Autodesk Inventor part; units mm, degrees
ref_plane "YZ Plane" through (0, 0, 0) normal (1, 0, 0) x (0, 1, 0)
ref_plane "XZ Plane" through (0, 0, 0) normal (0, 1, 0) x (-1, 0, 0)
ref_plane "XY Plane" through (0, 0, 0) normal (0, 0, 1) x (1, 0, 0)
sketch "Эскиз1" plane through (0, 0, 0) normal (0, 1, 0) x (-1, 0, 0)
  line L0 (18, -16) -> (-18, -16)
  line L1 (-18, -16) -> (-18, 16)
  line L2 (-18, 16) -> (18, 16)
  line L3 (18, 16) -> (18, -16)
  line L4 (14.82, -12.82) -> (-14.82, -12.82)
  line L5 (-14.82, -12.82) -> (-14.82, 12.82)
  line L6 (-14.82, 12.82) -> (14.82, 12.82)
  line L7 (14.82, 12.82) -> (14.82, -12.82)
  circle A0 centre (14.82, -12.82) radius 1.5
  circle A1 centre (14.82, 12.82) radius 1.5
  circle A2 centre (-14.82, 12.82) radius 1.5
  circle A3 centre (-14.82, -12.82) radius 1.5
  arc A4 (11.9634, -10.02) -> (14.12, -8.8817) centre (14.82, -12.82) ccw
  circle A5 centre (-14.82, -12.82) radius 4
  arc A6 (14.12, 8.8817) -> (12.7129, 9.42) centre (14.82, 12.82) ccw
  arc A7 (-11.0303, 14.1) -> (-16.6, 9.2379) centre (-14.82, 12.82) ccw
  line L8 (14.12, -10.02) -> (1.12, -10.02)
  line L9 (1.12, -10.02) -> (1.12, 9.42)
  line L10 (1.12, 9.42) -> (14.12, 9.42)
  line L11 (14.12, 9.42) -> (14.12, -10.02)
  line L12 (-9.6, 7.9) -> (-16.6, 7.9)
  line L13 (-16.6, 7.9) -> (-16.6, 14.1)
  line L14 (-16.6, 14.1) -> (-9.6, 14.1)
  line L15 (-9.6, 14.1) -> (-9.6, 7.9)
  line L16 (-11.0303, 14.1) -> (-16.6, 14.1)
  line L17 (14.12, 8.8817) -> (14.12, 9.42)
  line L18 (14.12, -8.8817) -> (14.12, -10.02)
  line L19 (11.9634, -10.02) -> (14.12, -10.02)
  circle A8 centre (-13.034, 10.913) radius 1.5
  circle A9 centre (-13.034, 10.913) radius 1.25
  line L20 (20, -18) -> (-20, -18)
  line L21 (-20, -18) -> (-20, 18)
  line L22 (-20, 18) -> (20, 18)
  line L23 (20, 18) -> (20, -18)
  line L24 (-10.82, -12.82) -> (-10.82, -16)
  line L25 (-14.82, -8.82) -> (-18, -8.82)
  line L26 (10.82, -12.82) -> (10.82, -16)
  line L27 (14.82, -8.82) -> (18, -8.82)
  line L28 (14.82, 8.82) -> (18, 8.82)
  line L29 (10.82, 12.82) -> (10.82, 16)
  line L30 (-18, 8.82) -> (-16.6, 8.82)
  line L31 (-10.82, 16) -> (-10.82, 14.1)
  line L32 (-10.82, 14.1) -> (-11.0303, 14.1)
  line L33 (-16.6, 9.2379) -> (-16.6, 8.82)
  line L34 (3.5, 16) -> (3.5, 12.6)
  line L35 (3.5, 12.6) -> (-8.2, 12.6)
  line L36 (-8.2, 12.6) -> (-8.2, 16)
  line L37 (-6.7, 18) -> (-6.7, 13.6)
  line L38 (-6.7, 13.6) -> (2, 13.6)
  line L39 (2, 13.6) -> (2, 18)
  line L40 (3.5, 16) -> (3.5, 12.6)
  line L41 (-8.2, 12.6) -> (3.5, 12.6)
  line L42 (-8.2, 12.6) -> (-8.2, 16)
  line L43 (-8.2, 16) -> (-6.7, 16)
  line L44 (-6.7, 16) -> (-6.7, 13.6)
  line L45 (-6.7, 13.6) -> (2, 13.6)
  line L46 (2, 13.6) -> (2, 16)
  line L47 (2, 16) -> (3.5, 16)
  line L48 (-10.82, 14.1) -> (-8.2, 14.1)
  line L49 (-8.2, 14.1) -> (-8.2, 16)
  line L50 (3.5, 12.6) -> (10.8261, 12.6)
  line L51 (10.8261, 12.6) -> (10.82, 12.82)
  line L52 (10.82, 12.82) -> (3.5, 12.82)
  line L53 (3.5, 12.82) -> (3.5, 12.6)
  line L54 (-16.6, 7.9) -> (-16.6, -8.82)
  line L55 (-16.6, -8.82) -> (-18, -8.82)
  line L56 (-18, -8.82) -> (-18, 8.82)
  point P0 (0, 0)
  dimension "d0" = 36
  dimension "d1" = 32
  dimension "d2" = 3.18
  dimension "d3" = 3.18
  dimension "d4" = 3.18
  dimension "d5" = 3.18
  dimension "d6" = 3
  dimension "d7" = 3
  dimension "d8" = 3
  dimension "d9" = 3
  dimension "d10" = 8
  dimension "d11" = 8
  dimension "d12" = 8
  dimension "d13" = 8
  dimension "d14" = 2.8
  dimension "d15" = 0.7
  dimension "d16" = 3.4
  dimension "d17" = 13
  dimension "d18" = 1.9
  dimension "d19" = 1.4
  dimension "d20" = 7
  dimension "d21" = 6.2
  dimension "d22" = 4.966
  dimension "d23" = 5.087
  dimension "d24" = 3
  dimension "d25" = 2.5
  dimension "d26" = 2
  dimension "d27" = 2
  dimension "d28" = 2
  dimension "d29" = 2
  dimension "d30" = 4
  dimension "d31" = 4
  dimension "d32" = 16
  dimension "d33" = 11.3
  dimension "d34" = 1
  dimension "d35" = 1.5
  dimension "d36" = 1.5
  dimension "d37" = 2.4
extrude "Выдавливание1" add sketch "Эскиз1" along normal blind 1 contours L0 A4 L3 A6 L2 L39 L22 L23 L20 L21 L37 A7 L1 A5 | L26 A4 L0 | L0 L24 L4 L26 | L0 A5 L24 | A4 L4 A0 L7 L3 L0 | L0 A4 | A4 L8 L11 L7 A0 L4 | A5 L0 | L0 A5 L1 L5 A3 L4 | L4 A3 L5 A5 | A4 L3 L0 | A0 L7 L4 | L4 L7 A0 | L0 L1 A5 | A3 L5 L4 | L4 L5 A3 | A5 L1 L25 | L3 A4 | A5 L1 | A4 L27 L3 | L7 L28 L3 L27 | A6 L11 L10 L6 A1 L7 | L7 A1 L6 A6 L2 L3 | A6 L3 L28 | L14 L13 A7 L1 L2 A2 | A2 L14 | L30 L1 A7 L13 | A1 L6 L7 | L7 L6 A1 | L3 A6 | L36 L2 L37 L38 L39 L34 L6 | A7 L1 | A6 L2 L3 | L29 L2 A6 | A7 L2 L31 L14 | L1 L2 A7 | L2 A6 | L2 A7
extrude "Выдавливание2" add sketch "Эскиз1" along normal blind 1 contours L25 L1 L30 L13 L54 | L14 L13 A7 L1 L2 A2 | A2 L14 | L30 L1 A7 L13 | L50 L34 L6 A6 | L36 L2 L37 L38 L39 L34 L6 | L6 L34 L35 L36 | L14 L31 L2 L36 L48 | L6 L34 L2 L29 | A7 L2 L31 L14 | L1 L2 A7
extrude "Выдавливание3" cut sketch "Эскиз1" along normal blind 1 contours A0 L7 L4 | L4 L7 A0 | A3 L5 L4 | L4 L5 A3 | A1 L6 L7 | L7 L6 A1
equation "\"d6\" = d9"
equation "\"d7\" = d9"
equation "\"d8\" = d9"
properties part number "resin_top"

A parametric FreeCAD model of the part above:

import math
import FreeCAD as App
import Part
import Sketcher

V = App.Vector
Q = App.Units.Quantity

doc = App.newDocument("Part")
body = doc.addObject("PartDesign::Body", "Body")

sketch1 = body.newObject("Sketcher::SketchObject", "Sketch")
sketch1.AttachmentSupport = (doc.getObject("XZ_Plane"), [""])
sketch1.MapMode = "FlatFace"
sketch1.addGeometry(Part.LineSegment(V(-2, 18, 0), V(-2, 13.6, 0)), False)
sketch1.addGeometry(Part.LineSegment(V(-2, 13.6, 0), V(6.7, 13.6, 0)), False)
sketch1.addGeometry(Part.LineSegment(V(6.7, 13.6, 0), V(6.7, 18, 0)), False)
sketch1.addGeometry(Part.LineSegment(V(6.7, 18, 0), V(20, 18, 0)), False)
sketch1.addGeometry(Part.LineSegment(V(20, 18, 0), V(20, -18, 0)), False)
sketch1.addGeometry(Part.LineSegment(V(20, -18, 0), V(-20, -18, 0)), False)
sketch1.addGeometry(Part.LineSegment(V(-20, -18, 0), V(-20, 18, 0)), False)
sketch1.addGeometry(Part.LineSegment(V(-20, 18, 0), V(-2, 18, 0)), False)
sketch1.addGeometry(Part.LineSegment(V(-3.5, 16, 0), V(-10.8, 16, 0)), False)
sketch1.addGeometry(Part.LineSegment(V(-10.8, 16, 0), V(-10.8, 12.8, 0)), False)
sketch1.addGeometry(Part.ArcOfCircle(Part.Circle(V(-14.8, 12.8, 0), V(0, 0, 1), 4), math.radians(-58), math.radians(0)), False)
sketch1.addGeometry(Part.LineSegment(V(-12.7, 9.4, 0), V(-14.1, 9.4, 0)), False)
sketch1.addGeometry(Part.LineSegment(V(-14.1, 9.4, 0), V(-14.1, 8.9, 0)), False)
sketch1.addGeometry(Part.ArcOfCircle(Part.Circle(V(-14.8, 12.8, 0), V(0, 0, 1), 4), math.radians(-90), math.radians(-79.92)), False)
sketch1.addGeometry(Part.LineSegment(V(-14.8, 8.8, 0), V(-14.8, -8.8, 0)), False)
sketch1.addGeometry(Part.ArcOfCircle(Part.Circle(V(-14.8, -12.8, 0), V(0, 0, 1), 4), math.radians(79.92), math.radians(90)), False)
sketch1.addGeometry(Part.LineSegment(V(-14.1, -8.9, 0), V(-14.1, -10, 0)), False)
sketch1.addGeometry(Part.LineSegment(V(-14.1, -10, 0), V(-12, -10, 0)), False)
sketch1.addGeometry(Part.ArcOfCircle(Part.Circle(V(-14.8, -12.8, 0), V(0, 0, 1), 4), math.radians(0), math.radians(44)), False)
sketch1.addGeometry(Part.LineSegment(V(-10.8, -12.8, 0), V(10.8, -12.8, 0)), False)
sketch1.addGeometry(Part.ArcOfCircle(Part.Circle(V(14.8, -12.8, 0), V(0, 0, 1), 4), math.radians(90), math.radians(180)), False)
sketch1.addGeometry(Part.LineSegment(V(14.8, -8.8, 0), V(18, -8.8, 0)), False)
sketch1.addGeometry(Part.LineSegment(V(18, -8.8, 0), V(18, 8.8, 0)), False)
sketch1.addGeometry(Part.LineSegment(V(18, 8.8, 0), V(16.6, 8.8, 0)), False)
sketch1.addGeometry(Part.LineSegment(V(16.6, 8.8, 0), V(16.6, 14.1, 0)), False)
sketch1.addGeometry(Part.LineSegment(V(16.6, 14.1, 0), V(10.8, 14.1, 0)), False)
sketch1.addGeometry(Part.LineSegment(V(10.8, 14.1, 0), V(10.8, 16, 0)), False)
sketch1.addGeometry(Part.LineSegment(V(10.8, 16, 0), V(8.2, 16, 0)), False)
sketch1.addGeometry(Part.LineSegment(V(8.2, 16, 0), V(8.2, 12.8, 0)), False)
sketch1.addGeometry(Part.LineSegment(V(8.2, 12.8, 0), V(-3.5, 12.8, 0)), False)
sketch1.addGeometry(Part.LineSegment(V(-3.5, 12.8, 0), V(-3.5, 16, 0)), False)
sketch1.addConstraint(Sketcher.Constraint("Coincident", 0, 2, 1, 1))
sketch1.addConstraint(Sketcher.Constraint("Coincident", 1, 2, 2, 1))
sketch1.addConstraint(Sketcher.Constraint("Coincident", 2, 2, 3, 1))
sketch1.addConstraint(Sketcher.Constraint("Coincident", 3, 2, 4, 1))
sketch1.addConstraint(Sketcher.Constraint("Coincident", 4, 2, 5, 1))
sketch1.addConstraint(Sketcher.Constraint("Coincident", 5, 2, 6, 1))
sketch1.addConstraint(Sketcher.Constraint("Coincident", 6, 2, 7, 1))
sketch1.addConstraint(Sketcher.Constraint("Coincident", 7, 2, 0, 1))
sketch1.addConstraint(Sketcher.Constraint("Coincident", 8, 2, 9, 1))
sketch1.addConstraint(Sketcher.Constraint("Tangent", 9, 2, 10, 2))
sketch1.addConstraint(Sketcher.Constraint("Coincident", 10, 1, 11, 1))
sketch1.addConstraint(Sketcher.Constraint("Coincident", 11, 2, 12, 1))
sketch1.addConstraint(Sketcher.Constraint("Coincident", 12, 2, 13, 2))
sketch1.addConstraint(Sketcher.Constraint("Coincident", 13, 1, 14, 1))
sketch1.addConstraint(Sketcher.Constraint("Coincident", 14, 2, 15, 2))
sketch1.addConstraint(Sketcher.Constraint("Coincident", 15, 1, 16, 1))
sketch1.addConstraint(Sketcher.Constraint("Coincident", 16, 2, 17, 1))
sketch1.addConstraint(Sketcher.Constraint("Coincident", 17, 2, 18, 2))
sketch1.addConstraint(Sketcher.Constraint("Coincident", 18, 1, 19, 1))
sketch1.addConstraint(Sketcher.Constraint("Coincident", 19, 2, 20, 2))
sketch1.addConstraint(Sketcher.Constraint("Tangent", 20, 1, 21, 1))
sketch1.addConstraint(Sketcher.Constraint("Coincident", 21, 2, 22, 1))
sketch1.addConstraint(Sketcher.Constraint("Coincident", 22, 2, 23, 1))
sketch1.addConstraint(Sketcher.Constraint("Coincident", 23, 2, 24, 1))
sketch1.addConstraint(Sketcher.Constraint("Coincident", 24, 2, 25, 1))
sketch1.addConstraint(Sketcher.Constraint("Coincident", 25, 2, 26, 1))
sketch1.addConstraint(Sketcher.Constraint("Coincident", 26, 2, 27, 1))
sketch1.addConstraint(Sketcher.Constraint("Coincident", 27, 2, 28, 1))
sketch1.addConstraint(Sketcher.Constraint("Coincident", 28, 2, 29, 1))
sketch1.addConstraint(Sketcher.Constraint("Coincident", 29, 2, 30, 1))
sketch1.addConstraint(Sketcher.Constraint("Coincident", 30, 2, 8, 1))
sketch1.addConstraint(Sketcher.Constraint("Vertical", 0))
sketch1.addConstraint(Sketcher.Constraint("Horizontal", 1))
sketch1.addConstraint(Sketcher.Constraint("Vertical", 2))
sketch1.addConstraint(Sketcher.Constraint("Horizontal", 3))
sketch1.addConstraint(Sketcher.Constraint("Vertical", 4))
sketch1.addConstraint(Sketcher.Constraint("Horizontal", 5))
sketch1.addConstraint(Sketcher.Constraint("Vertical", 6))
sketch1.addConstraint(Sketcher.Constraint("Horizontal", 7))
sketch1.addConstraint(Sketcher.Constraint("Horizontal", 8))
sketch1.addConstraint(Sketcher.Constraint("Vertical", 9))
sketch1.addConstraint(Sketcher.Constraint("Horizontal", 11))
sketch1.addConstraint(Sketcher.Constraint("Vertical", 12))
sketch1.addConstraint(Sketcher.Constraint("Vertical", 14))
sketch1.addConstraint(Sketcher.Constraint("Vertical", 16))
sketch1.addConstraint(Sketcher.Constraint("Horizontal", 17))
sketch1.addConstraint(Sketcher.Constraint("Horizontal", 19))
sketch1.addConstraint(Sketcher.Constraint("Horizontal", 21))
sketch1.addConstraint(Sketcher.Constraint("Vertical", 22))
sketch1.addConstraint(Sketcher.Constraint("Horizontal", 23))
sketch1.addConstraint(Sketcher.Constraint("Vertical", 24))
sketch1.addConstraint(Sketcher.Constraint("Horizontal", 25))
sketch1.addConstraint(Sketcher.Constraint("Vertical", 26))
sketch1.addConstraint(Sketcher.Constraint("Horizontal", 27))
sketch1.addConstraint(Sketcher.Constraint("Vertical", 28))
sketch1.addConstraint(Sketcher.Constraint("Horizontal", 29))
sketch1.addConstraint(Sketcher.Constraint("Vertical", 30))
sketch1.addConstraint(Sketcher.Constraint("Coincident", 13, 3, 10, 3))
sketch1.addConstraint(Sketcher.Constraint("Coincident", 18, 3, 15, 3))
sketch1.addConstraint(Sketcher.Constraint("Equal", 10, 13))
sketch1.addConstraint(Sketcher.Constraint("Equal", 13, 15))
sketch1.addConstraint(Sketcher.Constraint("Equal", 15, 18))
sketch1.addConstraint(Sketcher.Constraint("Equal", 18, 20))
sketch1.addConstraint(Sketcher.Constraint("Symmetric", 10, 3, 20, 3, -1, 1))
sketch1.addConstraint(Sketcher.Constraint("Symmetric", 3, 2, 5, 2, -1, 1))
sketch1.addConstraint(Sketcher.Constraint("Symmetric", 15, 3, 20, 3, -2))
sketch1.addConstraint(Sketcher.Constraint("Symmetric", 8, 2, 26, 2, -2))
sketch1.addConstraint(Sketcher.Constraint("Horizontal", 3, 2, 6, 2))
sketch1.addConstraint(Sketcher.Constraint("Horizontal", 20, 3, 18, 1))
sketch1.addConstraint(Sketcher.Constraint("Horizontal", 13, 1, 22, 2))
sketch1.addConstraint(Sketcher.Constraint("Horizontal", 9, 2, 28, 2))
sketch1.addConstraint(Sketcher.Constraint("Vertical", 18, 3, 13, 1))
sketch1.addConstraint(Sketcher.Constraint("Vertical", 12, 2, 15, 1))
sketch1.addConstraint(Sketcher.Constraint("Equal", 21, 9))
sketch1.addConstraint(Sketcher.Constraint("Radius", 10, Q("4 mm")))
sketch1.addConstraint(Sketcher.Constraint("DistanceY", 4, 2, 4, 1, Q("36 mm")))
sketch1.addConstraint(Sketcher.Constraint("DistanceX", 23, 2, 23, 1, Q("1.4 mm")))
sketch1.addConstraint(Sketcher.Constraint("DistanceY", 26, 1, 26, 2, Q("1.9 mm")))
sketch1.addConstraint(Sketcher.Constraint("DistanceX", 0, 2, -1, 1, Q("2 mm")))
sketch1.addConstraint(Sketcher.Constraint("DistanceY", -1, 1, 8, 2, Q("16 mm")))
sketch1.addConstraint(Sketcher.Constraint("DistanceX", 21, 2, 4, 2, Q("2 mm")))
sketch1.addConstraint(Sketcher.Constraint("DistanceX", 21, 1, 21, 2, Q("3.18 mm")))
sketch1.addConstraint(Sketcher.Constraint("DistanceY", 0, 2, 8, 2, Q("2.4 mm")))
sketch1.addConstraint(Sketcher.Constraint("DistanceY", 10, 1, 9, 2, Q("3.4 mm")))
sketch1.addConstraint(Sketcher.Constraint("DistanceX", 10, 3, 11, 2, Q("0.7 mm")))
sketch1.addConstraint(Sketcher.Constraint("DistanceY", 15, 3, 16, 2, Q("2.8 mm")))
sketch1.addConstraint(Sketcher.Constraint("DistanceX", 1, 2, 21, 2, Q("11.3 mm")))
sketch1.addConstraint(Sketcher.Constraint("DistanceX", 2, 2, 27, 2, Q("1.5 mm")))
sketch1.addConstraint(Sketcher.Constraint("DistanceX", 29, 2, 0, 2, Q("1.5 mm")))
sketch1.addConstraint(Sketcher.Constraint("DistanceX", 5, 2, 5, 1, Q("40 mm")))
pad1 = body.newObject("PartDesign::Pad", "Pad")
pad1.Profile = sketch1
pad1.Length = 1
pad1.Reversed = True

sketch2 = body.newObject("Sketcher::SketchObject", "Sketch001")
sketch2.AttachmentSupport = (doc.getObject("XZ_Plane"), [""])
sketch2.MapMode = "FlatFace"
sketch2.addGeometry(Part.LineSegment(V(18, -8.82, 0), V(16.6, -8.82, 0)), False)
sketch2.addGeometry(Part.LineSegment(V(16.6, -8.82, 0), V(16.6, 14.1, 0)), False)
sketch2.addGeometry(Part.LineSegment(V(16.6, 14.1, 0), V(8.2, 14.1, 0)), False)
sketch2.addGeometry(Part.LineSegment(V(8.2, 14.1, 0), V(8.2, 12.6, 0)), False)
sketch2.addGeometry(Part.LineSegment(V(8.2, 12.6, 0), V(-10.83, 12.6, 0)), False)
sketch2.addGeometry(Part.ArcOfCircle(Part.Circle(V(-14.82, 12.82, 0), V(0, 0, 1), 4), math.radians(-3.15), math.radians(0)), False)
sketch2.addGeometry(Part.LineSegment(V(-10.82, 12.82, 0), V(-10.82, 16, 0)), False)
sketch2.addGeometry(Part.LineSegment(V(-10.82, 16, 0), V(-2, 16, 0)), False)
sketch2.addGeometry(Part.LineSegment(V(-2, 16, 0), V(-2, 13.6, 0)), False)
sketch2.addGeometry(Part.LineSegment(V(-2, 13.6, 0), V(6.7, 13.6, 0)), False)
sketch2.addGeometry(Part.LineSegment(V(6.7, 13.6, 0), V(6.7, 16, 0)), False)
sketch2.addGeometry(Part.LineSegment(V(6.7, 16, 0), V(18, 16, 0)), False)
sketch2.addGeometry(Part.LineSegment(V(18, 16, 0), V(18, -8.82, 0)), False)
sketch2.addConstraint(Sketcher.Constraint("Coincident", 0, 2, 1, 1))
sketch2.addConstraint(Sketcher.Constraint("Coincident", 1, 2, 2, 1))
sketch2.addConstraint(Sketcher.Constraint("Coincident", 2, 2, 3, 1))
sketch2.addConstraint(Sketcher.Constraint("Coincident", 3, 2, 4, 1))
sketch2.addConstraint(Sketcher.Constraint("Coincident", 4, 2, 5, 1))
sketch2.addConstraint(Sketcher.Constraint("Tangent", 5, 2, 6, 1))
sketch2.addConstraint(Sketcher.Constraint("Coincident", 6, 2, 7, 1))
sketch2.addConstraint(Sketcher.Constraint("Coincident", 7, 2, 8, 1))
sketch2.addConstraint(Sketcher.Constraint("Coincident", 8, 2, 9, 1))
sketch2.addConstraint(Sketcher.Constraint("Coincident", 9, 2, 10, 1))
sketch2.addConstraint(Sketcher.Constraint("Coincident", 10, 2, 11, 1))
sketch2.addConstraint(Sketcher.Constraint("Coincident", 11, 2, 12, 1))
sketch2.addConstraint(Sketcher.Constraint("Coincident", 12, 2, 0, 1))
sketch2.addConstraint(Sketcher.Constraint("Horizontal", 0))
sketch2.addConstraint(Sketcher.Constraint("Vertical", 1))
sketch2.addConstraint(Sketcher.Constraint("Horizontal", 2))
sketch2.addConstraint(Sketcher.Constraint("Vertical", 3))
sketch2.addConstraint(Sketcher.Constraint("Horizontal", 4))
sketch2.addConstraint(Sketcher.Constraint("Vertical", 6))
sketch2.addConstraint(Sketcher.Constraint("Horizontal", 7))
sketch2.addConstraint(Sketcher.Constraint("Vertical", 8))
sketch2.addConstraint(Sketcher.Constraint("Horizontal", 9))
sketch2.addConstraint(Sketcher.Constraint("Vertical", 10))
sketch2.addConstraint(Sketcher.Constraint("Horizontal", 11))
sketch2.addConstraint(Sketcher.Constraint("Vertical", 12))
sketch2.addConstraint(Sketcher.Constraint("Horizontal", 7, 2, 10, 2))
sketch2.addConstraint(Sketcher.Constraint("Radius", 5, Q("4 mm")))
sketch2.addConstraint(Sketcher.Constraint("DistanceX", 0, 2, 0, 1, Q("1.4 mm")))
sketch2.addConstraint(Sketcher.Constraint("DistanceX", 11, 1, 11, 2, Q("11.3 mm")))
sketch2.addConstraint(Sketcher.Constraint("DistanceY", 3, 2, 3, 1, Q("1.5 mm")))
sketch2.addConstraint(Sketcher.Constraint("DistanceY", 8, 2, 8, 1, Q("2.4 mm")))
sketch2.addConstraint(Sketcher.Constraint("DistanceY", -1, 1, 6, 2, Q("16 mm")))
sketch2.addConstraint(Sketcher.Constraint("DistanceX", 7, 2, -1, 1, Q("2 mm")))
sketch2.addConstraint(Sketcher.Constraint("DistanceY", 4, 2, 8, 2, Q("1 mm")))
sketch2.addConstraint(Sketcher.Constraint("DistanceY", 6, 1, 6, 2, Q("3.18 mm")))
sketch2.addConstraint(Sketcher.Constraint("DistanceX", 9, 2, 2, 2, Q("1.5 mm")))
sketch2.addConstraint(Sketcher.Constraint("DistanceX", 9, 1, 9, 2, Q("8.7 mm")))
sketch2.addConstraint(Sketcher.Constraint("DistanceX", 7, 1, 7, 2, Q("8.82 mm")))
sketch2.addConstraint(Sketcher.Constraint("DistanceY", 1, 1, 1, 2, Q("22.92 mm")))
pad2 = body.newObject("PartDesign::Pad", "Pad001")
pad2.Profile = sketch2
pad2.Length = 1
pad2.Reversed = True

sketch3 = body.newObject("Sketcher::SketchObject", "Sketch002")
sketch3.AttachmentSupport = (doc.getObject("XZ_Plane"), [""])
sketch3.MapMode = "FlatFace"
sketch3.addGeometry(Part.Circle(V(-14.8, -12.8, 0), V(0, 0, 1), 1.5), False)
sketch3.addGeometry(Part.Circle(V(14.8, -12.8, 0), V(0, 0, 1), 1.5), False)
sketch3.addGeometry(Part.Circle(V(-14.8, 12.8, 0), V(0, 0, 1), 1.5), False)
sketch3.addConstraint(Sketcher.Constraint("Equal", 0, 1))
sketch3.addConstraint(Sketcher.Constraint("Equal", 1, 2))
sketch3.addConstraint(Sketcher.Constraint("Symmetric", 1, 3, 2, 3, -1, 1))
sketch3.addConstraint(Sketcher.Constraint("Symmetric", 0, 3, 1, 3, -2))
sketch3.addConstraint(Sketcher.Constraint("Diameter", 0, Q("3 mm")))
sketch3.addConstraint(Sketcher.Constraint("DistanceX", 0, 3, -1, 1, Q("14.82 mm")))
sketch3.addConstraint(Sketcher.Constraint("DistanceY", 0, 3, -1, 1, Q("12.82 mm")))
pocket1 = body.newObject("PartDesign::Pocket", "Pocket")
pocket1.Profile = sketch3
pocket1.Length = 1

doc.recompute()
